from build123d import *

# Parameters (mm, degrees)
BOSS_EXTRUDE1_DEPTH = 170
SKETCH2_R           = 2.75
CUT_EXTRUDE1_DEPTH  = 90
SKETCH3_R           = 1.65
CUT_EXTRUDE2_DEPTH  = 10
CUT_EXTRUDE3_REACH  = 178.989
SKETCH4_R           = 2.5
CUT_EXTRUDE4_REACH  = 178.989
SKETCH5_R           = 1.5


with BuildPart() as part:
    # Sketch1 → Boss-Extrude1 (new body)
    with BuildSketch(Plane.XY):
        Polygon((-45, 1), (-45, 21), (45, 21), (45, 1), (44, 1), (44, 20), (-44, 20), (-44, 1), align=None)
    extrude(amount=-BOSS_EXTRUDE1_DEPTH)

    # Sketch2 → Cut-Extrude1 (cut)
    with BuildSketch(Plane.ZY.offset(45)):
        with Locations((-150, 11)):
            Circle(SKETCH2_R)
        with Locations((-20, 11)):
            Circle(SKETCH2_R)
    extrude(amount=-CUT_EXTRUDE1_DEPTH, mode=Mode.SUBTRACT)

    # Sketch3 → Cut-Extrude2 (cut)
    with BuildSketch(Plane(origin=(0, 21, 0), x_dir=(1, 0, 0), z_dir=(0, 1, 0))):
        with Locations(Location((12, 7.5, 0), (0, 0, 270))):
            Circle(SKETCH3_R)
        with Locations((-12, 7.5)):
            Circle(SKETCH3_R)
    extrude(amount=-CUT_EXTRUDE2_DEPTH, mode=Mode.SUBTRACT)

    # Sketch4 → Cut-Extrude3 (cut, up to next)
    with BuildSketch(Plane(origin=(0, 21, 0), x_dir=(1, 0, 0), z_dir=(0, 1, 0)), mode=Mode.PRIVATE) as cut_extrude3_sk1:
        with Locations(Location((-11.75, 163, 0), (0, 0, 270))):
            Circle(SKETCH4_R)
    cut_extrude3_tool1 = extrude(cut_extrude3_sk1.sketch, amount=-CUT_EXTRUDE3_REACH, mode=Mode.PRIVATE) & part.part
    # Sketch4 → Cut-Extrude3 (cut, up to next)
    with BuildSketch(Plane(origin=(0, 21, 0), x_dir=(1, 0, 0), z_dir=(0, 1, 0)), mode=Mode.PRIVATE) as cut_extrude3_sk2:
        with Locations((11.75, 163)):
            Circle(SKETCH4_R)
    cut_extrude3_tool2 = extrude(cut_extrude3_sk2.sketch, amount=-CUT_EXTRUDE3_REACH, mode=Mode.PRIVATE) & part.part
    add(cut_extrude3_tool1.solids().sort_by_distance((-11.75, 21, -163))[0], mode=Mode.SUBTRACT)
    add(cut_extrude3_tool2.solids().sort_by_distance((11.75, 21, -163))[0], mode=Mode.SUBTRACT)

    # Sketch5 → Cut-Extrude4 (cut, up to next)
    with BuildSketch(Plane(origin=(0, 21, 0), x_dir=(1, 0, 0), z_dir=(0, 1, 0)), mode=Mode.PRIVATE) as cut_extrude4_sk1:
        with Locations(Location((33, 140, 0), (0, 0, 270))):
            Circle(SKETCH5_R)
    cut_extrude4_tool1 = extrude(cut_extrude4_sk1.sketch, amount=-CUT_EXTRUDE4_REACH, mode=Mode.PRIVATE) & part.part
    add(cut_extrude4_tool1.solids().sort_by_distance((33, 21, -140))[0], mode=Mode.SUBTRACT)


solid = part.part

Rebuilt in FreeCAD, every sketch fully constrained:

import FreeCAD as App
import Part
import Sketcher
from FreeCAD import Vector

doc = App.newDocument("Part")
params = doc.addObject("Spreadsheet::Sheet", "Params")
for row, (alias, value) in enumerate([
    ("sketch1_width", "1 mm"),
    ("sketch1_width2", "88 mm"),
    ("sketch1_height", "20 mm"),
    ("sketch1_height2", "19 mm"),
    ("pad1_length", "170 mm"),
    ("sketch2_diameter", "5.5 mm"),
    ("pocket1_length", "90 mm"),
    ("sketch3_diameter", "3.3 mm"),
    ("pocket2_length", "10 mm"),
    ("sketch4_diameter", "5 mm"),
    ("sketch5_diameter", "5 mm"),
    ("sketch6_diameter", "3 mm"),
], start=1):
    params.set(f"A{row}", alias)
    params.set(f"B{row}", "=" + value)
    params.setAlias(f"B{row}", alias)

body = doc.addObject("PartDesign::Body", "Body")

# Sketch on XY plane
sketch1 = body.newObject("Sketcher::SketchObject", "Sketch")
sketch1.AttachmentSupport = (doc.getObject("XY_Plane"), [""])
sketch1.MapMode = "FlatFace"
sketch1.addGeometry(Part.LineSegment(Vector(-45, 21, 0), Vector(-45, 1, 0)), False)
sketch1.addGeometry(Part.LineSegment(Vector(-45, 1, 0), Vector(-44, 1, 0)), False)
sketch1.addGeometry(Part.LineSegment(Vector(-44, 1, 0), Vector(-44, 20, 0)), False)
sketch1.addGeometry(Part.LineSegment(Vector(-44, 20, 0), Vector(44, 20, 0)), False)
sketch1.addGeometry(Part.LineSegment(Vector(44, 20, 0), Vector(44, 1, 0)), False)
sketch1.addGeometry(Part.LineSegment(Vector(44, 1, 0), Vector(45, 1, 0)), False)
sketch1.addGeometry(Part.LineSegment(Vector(45, 1, 0), Vector(45, 21, 0)), False)
sketch1.addGeometry(Part.LineSegment(Vector(45, 21, 0), Vector(-45, 21, 0)), False)
sketch1.addConstraint(Sketcher.Constraint("Coincident", 0, 2, 1, 1))
sketch1.addConstraint(Sketcher.Constraint("Coincident", 1, 2, 2, 1))
sketch1.addConstraint(Sketcher.Constraint("Coincident", 2, 2, 3, 1))
sketch1.addConstraint(Sketcher.Constraint("Coincident", 3, 2, 4, 1))
sketch1.addConstraint(Sketcher.Constraint("Coincident", 4, 2, 5, 1))
sketch1.addConstraint(Sketcher.Constraint("Coincident", 5, 2, 6, 1))
sketch1.addConstraint(Sketcher.Constraint("Coincident", 6, 2, 7, 1))
sketch1.addConstraint(Sketcher.Constraint("Coincident", 7, 2, 0, 1))
sketch1.addConstraint(Sketcher.Constraint("Vertical", 0))
sketch1.addConstraint(Sketcher.Constraint("Horizontal", 1))
sketch1.addConstraint(Sketcher.Constraint("Vertical", 2))
sketch1.addConstraint(Sketcher.Constraint("Horizontal", 3))
sketch1.addConstraint(Sketcher.Constraint("Vertical", 4))
sketch1.addConstraint(Sketcher.Constraint("Horizontal", 5))
sketch1.addConstraint(Sketcher.Constraint("Vertical", 6))
sketch1.addConstraint(Sketcher.Constraint("Horizontal", 7))
sketch1.addConstraint(Sketcher.Constraint("Symmetric", 1, 2, 4, 2, -2))
sketch1.addConstraint(Sketcher.Constraint("Equal", 1, 5))
sketch1.addConstraint(Sketcher.Constraint("DistanceX", 1, 1, 1, 2, 1.0))
sketch1.addConstraint(Sketcher.Constraint("DistanceX", 3, 1, 3, 2, 88.0))
sketch1.addConstraint(Sketcher.Constraint("DistanceY", 0, 2, 0, 1, 20.0))
sketch1.addConstraint(Sketcher.Constraint("DistanceY", 2, 1, 2, 2, 19.0))
sketch1.addConstraint(Sketcher.Constraint("DistanceY", -1, 1, 0, 2, 1.0))
sketch1.setExpression("Constraints[18]", "Params.sketch1_width")
sketch1.setExpression("Constraints[19]", "Params.sketch1_width2")
sketch1.setExpression("Constraints[20]", "Params.sketch1_height")
sketch1.setExpression("Constraints[21]", "Params.sketch1_height2")
pad1 = body.newObject("PartDesign::Pad", "Pad")
pad1.Profile = sketch1
pad1.setExpression("Length", "Params.pad1_length")
pad1.Reversed = True

# Sketch on YZ plane
sketch2 = body.newObject("Sketcher::SketchObject", "Sketch001")
sketch2.AttachmentSupport = (doc.getObject("YZ_Plane"), [""])
sketch2.MapMode = "FlatFace"
sketch2.AttachmentOffset = App.Placement(Vector(0, 0, -45), App.Rotation())
sketch2.addGeometry(Part.Circle(Vector(11, -150, 0), Vector(0, 0, 1), 2.8), False)
sketch2.addGeometry(Part.Circle(Vector(11, -20, 0), Vector(0, 0, 1), 2.8), False)
sketch2.addConstraint(Sketcher.Constraint("Equal", 0, 1))
sketch2.addConstraint(Sketcher.Constraint("Vertical", 0, 3, 1, 3))
sketch2.addConstraint(Sketcher.Constraint("Diameter", 0, 5.5))
sketch2.addConstraint(Sketcher.Constraint("DistanceX", -1, 1, 0, 3, 11.0))
sketch2.addConstraint(Sketcher.Constraint("DistanceY", 0, 3, -1, 1, 150.0))
sketch2.addConstraint(Sketcher.Constraint("DistanceY", 1, 3, -1, 1, 20.0))
sketch2.setExpression("Constraints[2]", "Params.sketch2_diameter")
pocket1 = body.newObject("PartDesign::Pocket", "Pocket")
pocket1.Profile = sketch2
pocket1.setExpression("Length", "Params.pocket1_length")
pocket1.Reversed = True

# Sketch on XZ plane
sketch3 = body.newObject("Sketcher::SketchObject", "Sketch002")
sketch3.AttachmentSupport = (doc.getObject("XZ_Plane"), [""])
sketch3.MapMode = "FlatFace"
sketch3.AttachmentOffset = App.Placement(Vector(0, 0, -21), App.Rotation())
sketch3.addGeometry(Part.Circle(Vector(12, -7.5, 0), Vector(0, 0, 1), 1.6), False)
sketch3.addGeometry(Part.Circle(Vector(-12, -7.5, 0), Vector(0, 0, 1), 1.6), False)
sketch3.addConstraint(Sketcher.Constraint("Equal", 0, 1))
sketch3.addConstraint(Sketcher.Constraint("Symmetric", 0, 3, 1, 3, -2))
sketch3.addConstraint(Sketcher.Constraint("Diameter", 0, 3.3))
sketch3.addConstraint(Sketcher.Constraint("DistanceX", -1, 1, 0, 3, 12.0))
sketch3.addConstraint(Sketcher.Constraint("DistanceY", 0, 3, -1, 1, 7.5))
sketch3.setExpression("Constraints[2]", "Params.sketch3_diameter")
pocket2 = body.newObject("PartDesign::Pocket", "Pocket001")
pocket2.Profile = sketch3
pocket2.setExpression("Length", "Params.pocket2_length")
pocket2.Reversed = True

# Sketch on XZ plane
sketch4 = body.newObject("Sketcher::SketchObject", "Sketch003")
sketch4.AttachmentSupport = (doc.getObject("XZ_Plane"), [""])
sketch4.MapMode = "FlatFace"
sketch4.AttachmentOffset = App.Placement(Vector(0, 0, -21), App.Rotation())
sketch4.addGeometry(Part.Circle(Vector(-11.8, -163, 0), Vector(0, 0, 1), 2.5), False)
sketch4.addConstraint(Sketcher.Constraint("Diameter", 0, 5.0))
sketch4.addConstraint(Sketcher.Constraint("DistanceY", 0, 3, -1, 1, 163.0))
sketch4.addConstraint(Sketcher.Constraint("DistanceX", 0, 3, -1, 1, 11.75))
sketch4.setExpression("Constraints[0]", "Params.sketch4_diameter")
pocket3 = body.newObject("PartDesign::Pocket", "Pocket002")
pocket3.Profile = sketch4
pocket3.Type = "UpToFirst"
pocket3.Reversed = True

# Sketch on XZ plane
sketch5 = body.newObject("Sketcher::SketchObject", "Sketch004")
sketch5.AttachmentSupport = (doc.getObject("XZ_Plane"), [""])
sketch5.MapMode = "FlatFace"
sketch5.AttachmentOffset = App.Placement(Vector(0, 0, -21), App.Rotation())
sketch5.addGeometry(Part.Circle(Vector(11.8, -163, 0), Vector(0, 0, 1), 2.5), False)
sketch5.addConstraint(Sketcher.Constraint("Diameter", 0, 5.0))
sketch5.addConstraint(Sketcher.Constraint("DistanceY", 0, 3, -1, 1, 163.0))
sketch5.addConstraint(Sketcher.Constraint("DistanceX", -1, 1, 0, 3, 11.75))
sketch5.setExpression("Constraints[0]", "Params.sketch5_diameter")
pocket4 = body.newObject("PartDesign::Pocket", "Pocket003")
pocket4.Profile = sketch5
pocket4.Type = "UpToFirst"
pocket4.Reversed = True

# Sketch on XZ plane
sketch6 = body.newObject("Sketcher::SketchObject", "Sketch005")
sketch6.AttachmentSupport = (doc.getObject("XZ_Plane"), [""])
sketch6.MapMode = "FlatFace"
sketch6.AttachmentOffset = App.Placement(Vector(0, 0, -21), App.Rotation())
sketch6.addGeometry(Part.Circle(Vector(33, -140, 0), Vector(0, 0, 1), 1.5), False)
sketch6.addConstraint(Sketcher.Constraint("Diameter", 0, 3.0))
sketch6.addConstraint(Sketcher.Constraint("DistanceX", -1, 1, 0, 3, 33.0))
sketch6.addConstraint(Sketcher.Constraint("DistanceY", 0, 3, -1, 1, 140.0))
sketch6.setExpression("Constraints[0]", "Params.sketch6_diameter")
pocket5 = body.newObject("PartDesign::Pocket", "Pocket004")
pocket5.Profile = sketch6
pocket5.Type = "UpToFirst"
pocket5.Reversed = True

doc.recompute()
